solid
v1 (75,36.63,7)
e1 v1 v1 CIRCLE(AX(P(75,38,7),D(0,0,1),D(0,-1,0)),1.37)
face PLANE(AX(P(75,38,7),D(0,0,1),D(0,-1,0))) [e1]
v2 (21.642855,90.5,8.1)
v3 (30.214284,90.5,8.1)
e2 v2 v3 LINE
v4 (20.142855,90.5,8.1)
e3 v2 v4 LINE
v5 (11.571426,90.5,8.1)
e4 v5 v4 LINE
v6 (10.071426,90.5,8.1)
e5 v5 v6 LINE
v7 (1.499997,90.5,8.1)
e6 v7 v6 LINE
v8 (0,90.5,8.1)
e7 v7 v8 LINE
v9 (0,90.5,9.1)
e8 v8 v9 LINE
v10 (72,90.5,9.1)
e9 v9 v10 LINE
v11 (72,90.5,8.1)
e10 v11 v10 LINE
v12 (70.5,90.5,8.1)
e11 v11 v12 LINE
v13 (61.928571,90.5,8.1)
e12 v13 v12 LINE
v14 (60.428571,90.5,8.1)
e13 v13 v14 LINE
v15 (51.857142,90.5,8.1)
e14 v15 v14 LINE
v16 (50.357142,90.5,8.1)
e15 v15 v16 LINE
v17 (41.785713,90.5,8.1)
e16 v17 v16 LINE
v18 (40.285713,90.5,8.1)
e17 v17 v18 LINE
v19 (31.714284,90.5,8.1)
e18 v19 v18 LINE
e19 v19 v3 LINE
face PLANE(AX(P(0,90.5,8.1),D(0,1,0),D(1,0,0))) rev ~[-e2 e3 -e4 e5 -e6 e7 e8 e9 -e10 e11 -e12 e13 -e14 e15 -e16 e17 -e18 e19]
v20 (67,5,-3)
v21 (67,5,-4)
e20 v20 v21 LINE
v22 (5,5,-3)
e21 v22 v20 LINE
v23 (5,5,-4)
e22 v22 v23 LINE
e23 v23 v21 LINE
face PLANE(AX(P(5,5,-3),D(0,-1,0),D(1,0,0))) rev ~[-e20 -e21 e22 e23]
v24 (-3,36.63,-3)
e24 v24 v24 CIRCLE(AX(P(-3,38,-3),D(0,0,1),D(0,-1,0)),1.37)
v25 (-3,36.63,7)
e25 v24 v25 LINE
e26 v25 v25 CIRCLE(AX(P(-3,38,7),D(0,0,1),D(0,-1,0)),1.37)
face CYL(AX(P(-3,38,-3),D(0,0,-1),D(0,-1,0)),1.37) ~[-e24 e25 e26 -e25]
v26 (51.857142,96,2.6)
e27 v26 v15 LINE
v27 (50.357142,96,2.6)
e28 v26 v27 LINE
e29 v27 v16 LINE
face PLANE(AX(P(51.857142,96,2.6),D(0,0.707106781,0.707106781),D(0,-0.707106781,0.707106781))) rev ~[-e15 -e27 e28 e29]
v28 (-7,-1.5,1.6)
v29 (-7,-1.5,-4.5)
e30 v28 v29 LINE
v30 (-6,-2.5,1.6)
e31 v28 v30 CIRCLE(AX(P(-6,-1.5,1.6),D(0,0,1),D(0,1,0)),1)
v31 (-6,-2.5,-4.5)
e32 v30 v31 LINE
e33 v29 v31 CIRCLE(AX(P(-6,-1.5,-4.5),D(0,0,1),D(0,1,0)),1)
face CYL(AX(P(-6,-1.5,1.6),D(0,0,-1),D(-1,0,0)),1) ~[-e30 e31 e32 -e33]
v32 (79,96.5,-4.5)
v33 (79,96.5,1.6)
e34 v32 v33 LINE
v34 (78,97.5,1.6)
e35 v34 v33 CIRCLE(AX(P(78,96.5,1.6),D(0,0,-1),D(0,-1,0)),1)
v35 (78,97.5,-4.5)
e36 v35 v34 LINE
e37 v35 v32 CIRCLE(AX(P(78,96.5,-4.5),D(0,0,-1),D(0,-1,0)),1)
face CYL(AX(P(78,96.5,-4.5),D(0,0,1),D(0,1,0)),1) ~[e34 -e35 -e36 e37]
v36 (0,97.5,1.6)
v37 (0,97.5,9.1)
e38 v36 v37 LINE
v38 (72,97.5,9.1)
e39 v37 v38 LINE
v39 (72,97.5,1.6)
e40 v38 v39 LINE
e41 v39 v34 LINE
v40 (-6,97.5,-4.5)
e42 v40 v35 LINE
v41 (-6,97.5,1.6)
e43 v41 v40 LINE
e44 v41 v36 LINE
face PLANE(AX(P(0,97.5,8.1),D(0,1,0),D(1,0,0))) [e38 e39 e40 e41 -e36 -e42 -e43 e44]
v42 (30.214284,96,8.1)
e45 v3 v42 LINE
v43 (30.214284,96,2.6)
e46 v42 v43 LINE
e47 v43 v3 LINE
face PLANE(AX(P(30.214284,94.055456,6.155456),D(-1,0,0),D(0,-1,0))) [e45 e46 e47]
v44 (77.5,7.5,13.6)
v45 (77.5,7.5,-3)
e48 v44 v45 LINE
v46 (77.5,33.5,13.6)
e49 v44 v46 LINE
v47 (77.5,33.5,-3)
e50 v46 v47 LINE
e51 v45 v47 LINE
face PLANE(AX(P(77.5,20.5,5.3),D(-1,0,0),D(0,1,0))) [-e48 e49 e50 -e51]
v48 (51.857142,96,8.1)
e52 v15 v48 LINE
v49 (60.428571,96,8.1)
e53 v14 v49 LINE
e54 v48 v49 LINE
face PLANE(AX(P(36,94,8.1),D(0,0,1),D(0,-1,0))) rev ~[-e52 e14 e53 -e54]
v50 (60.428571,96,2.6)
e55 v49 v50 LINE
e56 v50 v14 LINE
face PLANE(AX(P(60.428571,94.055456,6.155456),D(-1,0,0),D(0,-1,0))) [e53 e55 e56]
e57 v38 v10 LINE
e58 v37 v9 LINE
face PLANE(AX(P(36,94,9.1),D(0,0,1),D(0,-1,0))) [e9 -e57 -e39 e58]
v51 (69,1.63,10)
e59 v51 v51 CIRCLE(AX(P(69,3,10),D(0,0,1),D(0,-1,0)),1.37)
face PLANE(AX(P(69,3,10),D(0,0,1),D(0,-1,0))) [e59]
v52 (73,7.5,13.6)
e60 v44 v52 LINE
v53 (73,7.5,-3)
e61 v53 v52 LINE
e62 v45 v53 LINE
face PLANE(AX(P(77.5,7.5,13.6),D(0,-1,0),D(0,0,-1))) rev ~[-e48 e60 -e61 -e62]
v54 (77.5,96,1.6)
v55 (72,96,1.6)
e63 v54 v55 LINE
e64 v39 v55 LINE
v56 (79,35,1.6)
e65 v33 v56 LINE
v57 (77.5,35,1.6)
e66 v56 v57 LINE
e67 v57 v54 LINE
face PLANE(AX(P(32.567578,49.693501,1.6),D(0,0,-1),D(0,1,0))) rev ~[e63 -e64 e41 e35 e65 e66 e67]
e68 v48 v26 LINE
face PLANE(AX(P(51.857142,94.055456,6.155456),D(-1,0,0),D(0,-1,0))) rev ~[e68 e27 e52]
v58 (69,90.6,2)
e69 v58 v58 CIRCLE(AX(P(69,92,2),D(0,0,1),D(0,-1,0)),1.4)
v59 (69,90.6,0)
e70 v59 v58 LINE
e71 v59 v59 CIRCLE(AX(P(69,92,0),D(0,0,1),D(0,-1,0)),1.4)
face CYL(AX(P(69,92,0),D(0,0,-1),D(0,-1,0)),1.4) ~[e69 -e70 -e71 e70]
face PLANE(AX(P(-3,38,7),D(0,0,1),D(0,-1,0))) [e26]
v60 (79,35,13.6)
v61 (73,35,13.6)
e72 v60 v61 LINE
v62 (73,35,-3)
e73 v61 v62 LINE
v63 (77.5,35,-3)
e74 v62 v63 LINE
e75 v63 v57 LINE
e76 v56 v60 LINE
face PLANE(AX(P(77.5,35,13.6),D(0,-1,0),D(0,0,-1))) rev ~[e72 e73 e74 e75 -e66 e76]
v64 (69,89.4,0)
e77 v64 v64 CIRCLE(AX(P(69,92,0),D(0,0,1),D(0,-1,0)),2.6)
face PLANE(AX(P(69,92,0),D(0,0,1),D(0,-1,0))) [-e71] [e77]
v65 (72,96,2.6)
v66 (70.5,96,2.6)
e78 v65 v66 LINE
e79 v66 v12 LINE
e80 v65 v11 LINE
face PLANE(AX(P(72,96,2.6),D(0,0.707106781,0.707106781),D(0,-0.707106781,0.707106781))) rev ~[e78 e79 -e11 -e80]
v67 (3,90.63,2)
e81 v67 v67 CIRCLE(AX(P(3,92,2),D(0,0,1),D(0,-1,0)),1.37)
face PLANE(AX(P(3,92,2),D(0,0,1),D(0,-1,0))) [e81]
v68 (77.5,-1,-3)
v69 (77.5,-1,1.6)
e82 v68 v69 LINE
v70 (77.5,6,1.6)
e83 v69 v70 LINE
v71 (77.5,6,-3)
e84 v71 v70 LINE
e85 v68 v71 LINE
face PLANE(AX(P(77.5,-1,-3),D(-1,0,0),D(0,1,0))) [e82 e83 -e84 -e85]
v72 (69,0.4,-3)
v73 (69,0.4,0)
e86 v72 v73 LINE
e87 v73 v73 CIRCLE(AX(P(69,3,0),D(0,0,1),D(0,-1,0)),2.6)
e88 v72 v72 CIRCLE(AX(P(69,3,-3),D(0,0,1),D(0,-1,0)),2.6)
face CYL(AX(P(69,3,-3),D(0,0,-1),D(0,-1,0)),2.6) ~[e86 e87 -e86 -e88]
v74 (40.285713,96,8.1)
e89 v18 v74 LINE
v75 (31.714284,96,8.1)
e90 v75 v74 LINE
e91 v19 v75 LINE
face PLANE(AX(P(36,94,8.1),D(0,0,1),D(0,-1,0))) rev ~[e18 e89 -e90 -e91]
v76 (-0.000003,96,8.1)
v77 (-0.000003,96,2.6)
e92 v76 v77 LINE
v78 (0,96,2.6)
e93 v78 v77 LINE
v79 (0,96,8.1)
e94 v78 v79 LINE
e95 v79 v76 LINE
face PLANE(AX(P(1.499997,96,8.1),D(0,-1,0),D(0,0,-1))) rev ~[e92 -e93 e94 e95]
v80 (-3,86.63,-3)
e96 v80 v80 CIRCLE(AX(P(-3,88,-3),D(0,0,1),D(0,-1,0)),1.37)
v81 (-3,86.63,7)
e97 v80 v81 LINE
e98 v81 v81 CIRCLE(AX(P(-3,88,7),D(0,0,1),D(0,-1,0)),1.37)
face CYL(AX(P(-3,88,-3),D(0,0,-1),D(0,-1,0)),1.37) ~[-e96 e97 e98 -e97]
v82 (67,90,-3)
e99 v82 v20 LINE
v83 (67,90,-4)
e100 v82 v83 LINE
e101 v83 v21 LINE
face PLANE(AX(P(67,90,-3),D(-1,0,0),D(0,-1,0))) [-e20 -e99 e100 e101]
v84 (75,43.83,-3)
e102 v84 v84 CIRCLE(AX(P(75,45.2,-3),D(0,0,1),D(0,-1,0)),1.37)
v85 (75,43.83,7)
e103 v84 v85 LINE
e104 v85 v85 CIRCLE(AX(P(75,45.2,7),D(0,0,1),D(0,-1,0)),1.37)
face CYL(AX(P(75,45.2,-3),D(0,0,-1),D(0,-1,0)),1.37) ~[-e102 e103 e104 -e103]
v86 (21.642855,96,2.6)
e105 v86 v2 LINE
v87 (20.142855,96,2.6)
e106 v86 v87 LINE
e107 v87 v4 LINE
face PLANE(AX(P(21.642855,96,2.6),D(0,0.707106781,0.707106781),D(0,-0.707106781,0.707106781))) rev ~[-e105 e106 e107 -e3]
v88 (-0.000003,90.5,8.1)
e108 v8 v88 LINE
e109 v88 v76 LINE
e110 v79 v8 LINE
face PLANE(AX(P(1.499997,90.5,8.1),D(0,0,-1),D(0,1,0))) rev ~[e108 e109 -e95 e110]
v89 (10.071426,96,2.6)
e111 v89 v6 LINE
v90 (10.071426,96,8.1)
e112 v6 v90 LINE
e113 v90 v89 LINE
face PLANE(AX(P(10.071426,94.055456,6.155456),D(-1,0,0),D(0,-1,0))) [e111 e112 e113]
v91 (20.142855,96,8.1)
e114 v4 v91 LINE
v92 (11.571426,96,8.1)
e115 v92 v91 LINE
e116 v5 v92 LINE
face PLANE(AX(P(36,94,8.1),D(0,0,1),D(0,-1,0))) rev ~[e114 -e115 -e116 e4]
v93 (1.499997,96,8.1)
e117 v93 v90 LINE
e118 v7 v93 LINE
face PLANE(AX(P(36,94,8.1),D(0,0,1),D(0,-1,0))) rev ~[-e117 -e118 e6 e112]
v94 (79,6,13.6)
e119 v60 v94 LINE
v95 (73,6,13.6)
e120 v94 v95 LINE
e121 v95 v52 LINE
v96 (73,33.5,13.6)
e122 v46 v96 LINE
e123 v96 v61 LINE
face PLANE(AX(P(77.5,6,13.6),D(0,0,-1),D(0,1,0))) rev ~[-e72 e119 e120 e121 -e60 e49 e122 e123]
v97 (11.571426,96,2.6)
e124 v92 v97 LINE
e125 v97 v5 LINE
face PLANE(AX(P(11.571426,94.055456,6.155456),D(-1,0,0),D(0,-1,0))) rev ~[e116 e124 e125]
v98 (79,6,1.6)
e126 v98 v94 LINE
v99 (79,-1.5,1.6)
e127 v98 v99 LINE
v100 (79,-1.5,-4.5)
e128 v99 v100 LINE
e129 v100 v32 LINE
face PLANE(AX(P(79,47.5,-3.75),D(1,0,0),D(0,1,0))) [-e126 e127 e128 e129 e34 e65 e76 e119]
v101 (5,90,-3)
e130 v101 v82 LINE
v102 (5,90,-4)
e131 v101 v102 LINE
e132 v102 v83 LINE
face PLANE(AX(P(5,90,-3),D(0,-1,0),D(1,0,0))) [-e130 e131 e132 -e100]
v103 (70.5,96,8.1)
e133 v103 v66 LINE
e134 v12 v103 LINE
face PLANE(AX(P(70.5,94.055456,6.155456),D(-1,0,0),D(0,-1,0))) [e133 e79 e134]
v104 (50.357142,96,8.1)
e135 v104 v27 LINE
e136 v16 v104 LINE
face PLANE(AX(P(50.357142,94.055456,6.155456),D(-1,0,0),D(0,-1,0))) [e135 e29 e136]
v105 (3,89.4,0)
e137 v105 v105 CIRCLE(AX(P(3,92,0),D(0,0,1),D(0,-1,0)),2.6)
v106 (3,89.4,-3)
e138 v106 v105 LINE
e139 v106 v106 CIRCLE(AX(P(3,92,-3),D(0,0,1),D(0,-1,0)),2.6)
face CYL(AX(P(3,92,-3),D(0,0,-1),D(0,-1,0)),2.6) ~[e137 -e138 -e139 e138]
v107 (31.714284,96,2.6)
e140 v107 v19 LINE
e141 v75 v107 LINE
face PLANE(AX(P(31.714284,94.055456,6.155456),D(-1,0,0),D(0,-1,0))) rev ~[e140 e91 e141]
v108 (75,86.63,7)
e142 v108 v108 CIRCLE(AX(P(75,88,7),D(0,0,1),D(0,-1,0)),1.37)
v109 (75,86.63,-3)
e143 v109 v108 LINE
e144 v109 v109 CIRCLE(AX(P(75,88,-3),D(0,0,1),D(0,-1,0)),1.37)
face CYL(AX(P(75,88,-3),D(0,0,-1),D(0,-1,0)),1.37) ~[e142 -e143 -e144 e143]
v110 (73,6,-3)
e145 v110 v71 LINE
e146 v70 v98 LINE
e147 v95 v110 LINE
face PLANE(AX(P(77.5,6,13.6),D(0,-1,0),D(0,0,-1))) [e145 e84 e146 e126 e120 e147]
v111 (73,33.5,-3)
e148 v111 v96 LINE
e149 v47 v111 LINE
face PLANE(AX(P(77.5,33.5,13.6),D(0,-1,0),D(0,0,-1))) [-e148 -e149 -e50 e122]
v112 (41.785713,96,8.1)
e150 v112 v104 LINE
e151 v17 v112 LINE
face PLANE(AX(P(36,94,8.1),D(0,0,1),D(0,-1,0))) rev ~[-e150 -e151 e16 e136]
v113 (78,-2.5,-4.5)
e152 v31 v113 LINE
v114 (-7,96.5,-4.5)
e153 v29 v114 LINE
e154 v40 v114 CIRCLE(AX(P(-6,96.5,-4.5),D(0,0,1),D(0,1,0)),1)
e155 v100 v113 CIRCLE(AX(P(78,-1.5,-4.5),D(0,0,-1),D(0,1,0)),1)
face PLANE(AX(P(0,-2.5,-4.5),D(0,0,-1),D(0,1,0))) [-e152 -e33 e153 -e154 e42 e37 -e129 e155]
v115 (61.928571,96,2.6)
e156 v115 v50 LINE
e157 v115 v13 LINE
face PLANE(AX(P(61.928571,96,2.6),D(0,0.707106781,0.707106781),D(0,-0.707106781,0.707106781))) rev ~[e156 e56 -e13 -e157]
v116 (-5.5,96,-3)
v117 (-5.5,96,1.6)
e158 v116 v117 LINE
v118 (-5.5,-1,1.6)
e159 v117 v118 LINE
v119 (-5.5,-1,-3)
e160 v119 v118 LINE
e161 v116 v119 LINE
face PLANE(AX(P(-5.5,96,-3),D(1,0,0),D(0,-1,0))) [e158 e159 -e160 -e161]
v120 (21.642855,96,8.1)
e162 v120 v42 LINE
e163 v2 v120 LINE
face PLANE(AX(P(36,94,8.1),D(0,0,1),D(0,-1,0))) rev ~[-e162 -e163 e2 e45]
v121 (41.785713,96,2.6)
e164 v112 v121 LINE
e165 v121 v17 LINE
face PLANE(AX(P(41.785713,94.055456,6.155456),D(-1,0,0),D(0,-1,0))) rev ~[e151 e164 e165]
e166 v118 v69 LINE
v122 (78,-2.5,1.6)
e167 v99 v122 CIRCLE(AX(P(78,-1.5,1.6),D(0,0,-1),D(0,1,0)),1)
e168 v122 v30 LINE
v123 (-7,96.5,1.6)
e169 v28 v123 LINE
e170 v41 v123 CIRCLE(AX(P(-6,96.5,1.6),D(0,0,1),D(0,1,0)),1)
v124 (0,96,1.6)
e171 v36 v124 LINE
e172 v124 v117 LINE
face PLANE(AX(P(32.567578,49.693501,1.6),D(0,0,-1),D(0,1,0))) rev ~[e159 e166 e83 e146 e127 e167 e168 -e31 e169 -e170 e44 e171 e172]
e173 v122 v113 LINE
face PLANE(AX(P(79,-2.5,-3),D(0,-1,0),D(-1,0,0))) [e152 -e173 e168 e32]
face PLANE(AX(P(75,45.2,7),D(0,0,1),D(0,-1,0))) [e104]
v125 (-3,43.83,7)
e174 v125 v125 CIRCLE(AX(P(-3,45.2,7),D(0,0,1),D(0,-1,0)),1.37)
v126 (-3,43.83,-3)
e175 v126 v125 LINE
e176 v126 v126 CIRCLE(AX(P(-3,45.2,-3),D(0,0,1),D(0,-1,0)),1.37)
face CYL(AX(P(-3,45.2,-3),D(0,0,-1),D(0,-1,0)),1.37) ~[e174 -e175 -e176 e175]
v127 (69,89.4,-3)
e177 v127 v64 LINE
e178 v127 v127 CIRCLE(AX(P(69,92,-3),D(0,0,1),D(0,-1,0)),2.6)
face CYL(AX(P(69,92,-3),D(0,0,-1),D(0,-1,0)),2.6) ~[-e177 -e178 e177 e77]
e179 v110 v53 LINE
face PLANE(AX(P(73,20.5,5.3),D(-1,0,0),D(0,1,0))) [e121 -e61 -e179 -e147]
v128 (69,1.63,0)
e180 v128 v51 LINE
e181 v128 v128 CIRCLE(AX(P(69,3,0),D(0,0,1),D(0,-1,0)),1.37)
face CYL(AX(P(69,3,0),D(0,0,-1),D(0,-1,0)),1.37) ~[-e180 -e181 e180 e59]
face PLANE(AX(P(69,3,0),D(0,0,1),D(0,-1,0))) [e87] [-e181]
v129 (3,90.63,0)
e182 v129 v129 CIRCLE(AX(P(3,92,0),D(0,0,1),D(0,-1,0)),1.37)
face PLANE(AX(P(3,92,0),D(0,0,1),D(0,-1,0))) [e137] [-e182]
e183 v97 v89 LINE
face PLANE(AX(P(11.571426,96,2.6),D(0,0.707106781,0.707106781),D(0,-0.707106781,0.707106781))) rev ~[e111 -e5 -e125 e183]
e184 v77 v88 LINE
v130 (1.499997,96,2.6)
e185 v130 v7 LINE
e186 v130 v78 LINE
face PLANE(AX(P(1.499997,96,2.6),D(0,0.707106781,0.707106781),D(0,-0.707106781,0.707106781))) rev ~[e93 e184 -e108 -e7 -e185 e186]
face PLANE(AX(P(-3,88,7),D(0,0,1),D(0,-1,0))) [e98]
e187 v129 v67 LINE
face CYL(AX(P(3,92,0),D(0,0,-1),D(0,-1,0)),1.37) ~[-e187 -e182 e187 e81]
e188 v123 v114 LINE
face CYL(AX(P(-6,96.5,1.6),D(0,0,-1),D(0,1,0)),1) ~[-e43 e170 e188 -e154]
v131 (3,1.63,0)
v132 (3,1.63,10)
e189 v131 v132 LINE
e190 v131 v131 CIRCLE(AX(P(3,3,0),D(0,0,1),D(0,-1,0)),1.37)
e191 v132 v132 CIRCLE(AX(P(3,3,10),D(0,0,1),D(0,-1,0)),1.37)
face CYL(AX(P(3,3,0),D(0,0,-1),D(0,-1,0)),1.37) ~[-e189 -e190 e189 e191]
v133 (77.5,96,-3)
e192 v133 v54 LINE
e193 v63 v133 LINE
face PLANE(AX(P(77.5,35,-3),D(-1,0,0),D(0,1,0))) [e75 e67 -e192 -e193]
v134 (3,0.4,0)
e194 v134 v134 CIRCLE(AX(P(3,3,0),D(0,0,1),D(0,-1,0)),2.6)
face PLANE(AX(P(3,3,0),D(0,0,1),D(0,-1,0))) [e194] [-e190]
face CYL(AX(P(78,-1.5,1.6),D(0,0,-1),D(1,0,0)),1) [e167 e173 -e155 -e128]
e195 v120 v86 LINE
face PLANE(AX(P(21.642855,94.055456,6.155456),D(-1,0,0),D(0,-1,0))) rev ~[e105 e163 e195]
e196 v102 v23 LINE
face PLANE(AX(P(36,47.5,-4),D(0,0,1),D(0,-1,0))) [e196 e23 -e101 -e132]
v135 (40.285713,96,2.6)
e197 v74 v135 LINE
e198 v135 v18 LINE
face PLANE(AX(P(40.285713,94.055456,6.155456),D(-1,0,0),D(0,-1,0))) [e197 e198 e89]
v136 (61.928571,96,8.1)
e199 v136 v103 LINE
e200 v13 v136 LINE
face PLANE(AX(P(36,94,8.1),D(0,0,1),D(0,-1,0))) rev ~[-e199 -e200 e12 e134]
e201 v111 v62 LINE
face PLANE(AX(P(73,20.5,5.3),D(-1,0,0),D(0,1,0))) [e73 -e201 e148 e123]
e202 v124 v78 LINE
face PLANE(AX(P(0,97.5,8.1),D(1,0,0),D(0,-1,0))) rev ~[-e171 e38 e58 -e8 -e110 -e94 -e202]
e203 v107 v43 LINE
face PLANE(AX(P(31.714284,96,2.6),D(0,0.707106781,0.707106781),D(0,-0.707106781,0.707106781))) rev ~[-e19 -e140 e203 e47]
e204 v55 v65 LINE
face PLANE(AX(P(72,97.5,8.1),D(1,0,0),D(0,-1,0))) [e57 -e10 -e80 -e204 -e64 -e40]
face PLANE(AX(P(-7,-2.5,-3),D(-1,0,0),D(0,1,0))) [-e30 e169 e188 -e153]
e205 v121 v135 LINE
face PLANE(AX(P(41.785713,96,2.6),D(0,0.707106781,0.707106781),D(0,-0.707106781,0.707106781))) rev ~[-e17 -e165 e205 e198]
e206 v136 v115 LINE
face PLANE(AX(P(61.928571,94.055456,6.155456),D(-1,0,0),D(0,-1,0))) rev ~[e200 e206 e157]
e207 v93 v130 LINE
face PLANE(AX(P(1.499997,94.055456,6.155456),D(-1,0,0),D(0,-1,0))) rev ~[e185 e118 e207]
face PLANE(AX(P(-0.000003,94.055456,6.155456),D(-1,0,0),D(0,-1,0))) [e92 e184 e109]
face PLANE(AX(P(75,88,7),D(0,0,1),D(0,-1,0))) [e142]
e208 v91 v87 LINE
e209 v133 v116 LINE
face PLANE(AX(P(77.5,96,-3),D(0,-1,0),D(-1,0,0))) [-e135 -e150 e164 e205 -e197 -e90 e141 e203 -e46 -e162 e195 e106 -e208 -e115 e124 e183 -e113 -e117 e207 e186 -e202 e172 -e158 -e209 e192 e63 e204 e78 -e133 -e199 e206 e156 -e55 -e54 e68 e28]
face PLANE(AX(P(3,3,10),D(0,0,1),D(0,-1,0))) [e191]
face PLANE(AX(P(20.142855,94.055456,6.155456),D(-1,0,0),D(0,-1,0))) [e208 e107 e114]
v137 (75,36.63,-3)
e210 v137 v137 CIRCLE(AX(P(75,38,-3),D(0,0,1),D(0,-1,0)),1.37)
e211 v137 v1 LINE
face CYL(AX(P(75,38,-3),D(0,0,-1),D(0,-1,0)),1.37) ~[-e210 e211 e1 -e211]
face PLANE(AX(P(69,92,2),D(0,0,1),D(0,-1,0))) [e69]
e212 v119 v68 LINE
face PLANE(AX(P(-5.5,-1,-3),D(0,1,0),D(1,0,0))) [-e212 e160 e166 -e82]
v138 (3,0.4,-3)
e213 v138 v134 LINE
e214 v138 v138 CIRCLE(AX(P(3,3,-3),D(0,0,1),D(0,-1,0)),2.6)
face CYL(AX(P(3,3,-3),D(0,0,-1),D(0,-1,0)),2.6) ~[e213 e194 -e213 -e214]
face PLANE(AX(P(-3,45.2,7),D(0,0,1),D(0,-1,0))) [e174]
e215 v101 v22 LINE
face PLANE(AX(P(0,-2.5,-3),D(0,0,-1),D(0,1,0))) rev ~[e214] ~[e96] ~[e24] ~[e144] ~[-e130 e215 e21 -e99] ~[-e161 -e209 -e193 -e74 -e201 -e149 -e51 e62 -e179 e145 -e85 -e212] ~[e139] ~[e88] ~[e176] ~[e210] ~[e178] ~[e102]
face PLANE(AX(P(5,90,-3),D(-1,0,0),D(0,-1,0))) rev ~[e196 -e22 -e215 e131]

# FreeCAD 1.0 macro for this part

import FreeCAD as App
import Part
import Sketcher
from FreeCAD import Vector


def edges_at(feature, points):
    """Names of the edges that pass closest to the given points."""
    edges = feature.Shape.Edges
    near = lambda p: min(range(len(edges)), key=lambda i: edges[i].distToShape(Part.Vertex(*p))[0])
    return sorted({f"Edge{near(p) + 1}" for p in points})

doc = App.newDocument("Part")
body = doc.addObject("PartDesign::Body", "Body")

# Sketch on YZ plane
sketch1 = body.newObject("Sketcher::SketchObject", "Sketch")
sketch1.AttachmentSupport = (doc.getObject("YZ_Plane"), [""])
sketch1.MapMode = "FlatFace"
sketch1.addGeometry(Part.LineSegment(Vector(-2.5, -3, 0), Vector(-2.5, -4.5, 0)), False)
sketch1.addGeometry(Part.LineSegment(Vector(-2.5, -4.5, 0), Vector(97.5, -4.5, 0)), False)
sketch1.addGeometry(Part.LineSegment(Vector(97.5, -4.5, 0), Vector(97.5, -3, 0)), False)
sketch1.addGeometry(Part.LineSegment(Vector(97.5, -3, 0), Vector(-2.5, -3, 0)), False)
sketch1.addConstraint(Sketcher.Constraint("Coincident", 0, 2, 1, 1))
sketch1.addConstraint(Sketcher.Constraint("Coincident", 1, 2, 2, 1))
sketch1.addConstraint(Sketcher.Constraint("Coincident", 2, 2, 3, 1))
sketch1.addConstraint(Sketcher.Constraint("Coincident", 3, 2, 0, 1))
sketch1.addConstraint(Sketcher.Constraint("Vertical", 0))
sketch1.addConstraint(Sketcher.Constraint("Horizontal", 1))
sketch1.addConstraint(Sketcher.Constraint("Vertical", 2))
sketch1.addConstraint(Sketcher.Constraint("Horizontal", 3))
sketch1.addConstraint(Sketcher.Constraint("DistanceX", 1, 1, 1, 2, 100.0))
sketch1.addConstraint(Sketcher.Constraint("DistanceY", 0, 2, 0, 1, 1.5))
sketch1.addConstraint(Sketcher.Constraint("DistanceY", 2, 2, -1, 1, 3.0))
sketch1.addConstraint(Sketcher.Constraint("DistanceX", 0, 2, -1, 1, 2.5))
pad1 = body.newObject("PartDesign::Pad", "Pad")
pad1.Profile = sketch1
pad1.Type = "TwoLengths"
pad1.Length = 79
pad1.Length2 = 7

# Sketch on XY plane
sketch2 = body.newObject("Sketcher::SketchObject", "Sketch001")
sketch2.AttachmentSupport = (doc.getObject("XY_Plane"), [""])
sketch2.MapMode = "FlatFace"
sketch2.AttachmentOffset = App.Placement(Vector(0, 0, -3), App.Rotation())
sketch2.addGeometry(Part.Circle(Vector(3, 3, 0), Vector(0, 0, 1), 2.6), False)
sketch2.addGeometry(Part.Circle(Vector(69, 3, 0), Vector(0, 0, 1), 2.6), False)
sketch2.addGeometry(Part.Circle(Vector(3, 92, 0), Vector(0, 0, 1), 2.6), False)
sketch2.addGeometry(Part.Circle(Vector(69, 92, 0), Vector(0, 0, 1), 2.6), False)
sketch2.addConstraint(Sketcher.Constraint("Equal", 0, 1))
sketch2.addConstraint(Sketcher.Constraint("Equal", 1, 2))
sketch2.addConstraint(Sketcher.Constraint("Equal", 2, 3))
sketch2.addConstraint(Sketcher.Constraint("Horizontal", 0, 3, 1, 3))
sketch2.addConstraint(Sketcher.Constraint("Horizontal", 2, 3, 3, 3))
sketch2.addConstraint(Sketcher.Constraint("Vertical", 0, 3, 2, 3))
sketch2.addConstraint(Sketcher.Constraint("Vertical", 1, 3, 3, 3))
sketch2.addConstraint(Sketcher.Constraint("Diameter", 0, 5.2))
sketch2.addConstraint(Sketcher.Constraint("DistanceX", -1, 1, 0, 3, 3.0))
sketch2.addConstraint(Sketcher.Constraint("DistanceY", -1, 1, 0, 3, 3.0))
sketch2.addConstraint(Sketcher.Constraint("DistanceX", -1, 1, 1, 3, 69.0))
sketch2.addConstraint(Sketcher.Constraint("DistanceY", -1, 1, 2, 3, 92.0))
pad2 = body.newObject("PartDesign::Pad", "Pad001")
pad2.Profile = sketch2
pad2.Length = 3

# Sketch on XY plane
sketch3 = body.newObject("Sketcher::SketchObject", "Sketch002")
sketch3.AttachmentSupport = (doc.getObject("XY_Plane"), [""])
sketch3.MapMode = "FlatFace"
sketch3.AttachmentOffset = App.Placement(Vector(0, 0, -3), App.Rotation())
sketch3.addGeometry(Part.LineSegment(Vector(79, 35, 0), Vector(77.5, 35, 0)), False)
sketch3.addGeometry(Part.LineSegment(Vector(77.5, 35, 0), Vector(77.5, 6, 0)), False)
sketch3.addGeometry(Part.LineSegment(Vector(77.5, 6, 0), Vector(79, 6, 0)), False)
sketch3.addGeometry(Part.LineSegment(Vector(79, 6, 0), Vector(79, 35, 0)), False)
sketch3.addConstraint(Sketcher.Constraint("Coincident", 0, 2, 1, 1))
sketch3.addConstraint(Sketcher.Constraint("Coincident", 1, 2, 2, 1))
sketch3.addConstraint(Sketcher.Constraint("Coincident", 2, 2, 3, 1))
sketch3.addConstraint(Sketcher.Constraint("Coincident", 3, 2, 0, 1))
sketch3.addConstraint(Sketcher.Constraint("Horizontal", 0))
sketch3.addConstraint(Sketcher.Constraint("Vertical", 1))
sketch3.addConstraint(Sketcher.Constraint("Horizontal", 2))
sketch3.addConstraint(Sketcher.Constraint("Vertical", 3))
sketch3.addConstraint(Sketcher.Constraint("DistanceY", 1, 2, 1, 1, 29.0))
sketch3.addConstraint(Sketcher.Constraint("DistanceX", 0, 2, 0, 1, 1.5))
sketch3.addConstraint(Sketcher.Constraint("DistanceY", -1, 1, 0, 2, 35.0))
sketch3.addConstraint(Sketcher.Constraint("DistanceX", -1, 1, 2, 2, 79.0))
pad3 = body.newObject("PartDesign::Pad", "Pad002")
pad3.Profile = sketch3
pad3.Length = 16.6

# Sketch on YZ plane
sketch4 = body.newObject("Sketcher::SketchObject", "Sketch003")
sketch4.AttachmentSupport = (doc.getObject("YZ_Plane"), [""])
sketch4.MapMode = "FlatFace"
sketch4.AttachmentOffset = App.Placement(Vector(0, 0, 77.5), App.Rotation())
sketch4.addGeometry(Part.LineSegment(Vector(6, -3, 0), Vector(6, 14, 0)), False)
sketch4.addGeometry(Part.LineSegment(Vector(6, 14, 0), Vector(35, 14, 0)), False)
sketch4.addGeometry(Part.LineSegment(Vector(35, 14, 0), Vector(35, -3, 0)), False)
sketch4.addGeometry(Part.LineSegment(Vector(35, -3, 0), Vector(6, -3, 0)), False)
sketch4.addConstraint(Sketcher.Constraint("Coincident", 0, 2, 1, 1))
sketch4.addConstraint(Sketcher.Constraint("Coincident", 1, 2, 2, 1))
sketch4.addConstraint(Sketcher.Constraint("Coincident", 2, 2, 3, 1))
sketch4.addConstraint(Sketcher.Constraint("Coincident", 3, 2, 0, 1))
sketch4.addConstraint(Sketcher.Constraint("Vertical", 0))
sketch4.addConstraint(Sketcher.Constraint("Horizontal", 1))
sketch4.addConstraint(Sketcher.Constraint("Vertical", 2))
sketch4.addConstraint(Sketcher.Constraint("Horizontal", 3))
sketch4.addConstraint(Sketcher.Constraint("DistanceX", 1, 1, 1, 2, 29.0))
sketch4.addConstraint(Sketcher.Constraint("DistanceY", 0, 1, 0, 2, 16.6))
sketch4.addConstraint(Sketcher.Constraint("DistanceX", -1, 1, 0, 2, 6.0))
sketch4.addConstraint(Sketcher.Constraint("DistanceY", 2, 2, -1, 1, 3.0))
pad4 = body.newObject("PartDesign::Pad", "Pad003")
pad4.Profile = sketch4
pad4.Length = 4.5
pad4.Reversed = True

# Sketch on YZ plane
sketch5 = body.newObject("Sketcher::SketchObject", "Sketch004")
sketch5.AttachmentSupport = (doc.getObject("YZ_Plane"), [""])
sketch5.MapMode = "FlatFace"
sketch5.AttachmentOffset = App.Placement(Vector(0, 0, 77.5), App.Rotation())
sketch5.addGeometry(Part.LineSegment(Vector(8, -3, 0), Vector(8, 14, 0)), False)
sketch5.addGeometry(Part.LineSegment(Vector(8, 14, 0), Vector(34, 14, 0)), False)
sketch5.addGeometry(Part.LineSegment(Vector(34, 14, 0), Vector(34, -3, 0)), False)
sketch5.addGeometry(Part.LineSegment(Vector(34, -3, 0), Vector(8, -3, 0)), False)
sketch5.addConstraint(Sketcher.Constraint("Coincident", 0, 2, 1, 1))
sketch5.addConstraint(Sketcher.Constraint("Coincident", 1, 2, 2, 1))
sketch5.addConstraint(Sketcher.Constraint("Coincident", 2, 2, 3, 1))
sketch5.addConstraint(Sketcher.Constraint("Coincident", 3, 2, 0, 1))
sketch5.addConstraint(Sketcher.Constraint("Vertical", 0))
sketch5.addConstraint(Sketcher.Constraint("Horizontal", 1))
sketch5.addConstraint(Sketcher.Constraint("Vertical", 2))
sketch5.addConstraint(Sketcher.Constraint("Horizontal", 3))
sketch5.addConstraint(Sketcher.Constraint("DistanceX", 1, 1, 1, 2, 26.0))
sketch5.addConstraint(Sketcher.Constraint("DistanceY", 0, 1, 0, 2, 16.6))
sketch5.addConstraint(Sketcher.Constraint("DistanceY", 2, 2, -1, 1, 3.0))
sketch5.addConstraint(Sketcher.Constraint("DistanceX", -1, 1, 0, 2, 7.5))
pocket1 = body.newObject("PartDesign::Pocket", "Pocket")
pocket1.Profile = sketch5
pocket1.Length = 10

# Sketch on XY plane
sketch6 = body.newObject("Sketcher::SketchObject", "Sketch005")
sketch6.AttachmentSupport = (doc.getObject("XY_Plane"), [""])
sketch6.MapMode = "FlatFace"
sketch6.AttachmentOffset = App.Placement(Vector(0, 0, -3), App.Rotation())
sketch6.addGeometry(Part.LineSegment(Vector(67, 90, 0), Vector(5, 90, 0)), False)
sketch6.addGeometry(Part.LineSegment(Vector(5, 90, 0), Vector(5, 5, 0)), False)
sketch6.addGeometry(Part.LineSegment(Vector(5, 5, 0), Vector(67, 5, 0)), False)
sketch6.addGeometry(Part.LineSegment(Vector(67, 5, 0), Vector(67, 90, 0)), False)
sketch6.addConstraint(Sketcher.Constraint("Coincident", 0, 2, 1, 1))
sketch6.addConstraint(Sketcher.Constraint("Coincident", 1, 2, 2, 1))
sketch6.addConstraint(Sketcher.Constraint("Coincident", 2, 2, 3, 1))
sketch6.addConstraint(Sketcher.Constraint("Coincident", 3, 2, 0, 1))
sketch6.addConstraint(Sketcher.Constraint("Horizontal", 0))
sketch6.addConstraint(Sketcher.Constraint("Vertical", 1))
sketch6.addConstraint(Sketcher.Constraint("Horizontal", 2))
sketch6.addConstraint(Sketcher.Constraint("Vertical", 3))
sketch6.addConstraint(Sketcher.Constraint("DistanceX", 0, 2, 0, 1, 62.0))
sketch6.addConstraint(Sketcher.Constraint("DistanceY", 1, 2, 1, 1, 85.0))
sketch6.addConstraint(Sketcher.Constraint("DistanceX", -1, 1, 0, 2, 5.0))
sketch6.addConstraint(Sketcher.Constraint("DistanceY", -1, 1, 0, 2, 90.0))
pocket2 = body.newObject("PartDesign::Pocket", "Pocket001")
pocket2.Profile = sketch6
pocket2.Length = 1

# Sketch on XY plane
sketch7 = body.newObject("Sketcher::SketchObject", "Sketch006")
sketch7.AttachmentSupport = (doc.getObject("XY_Plane"), [""])
sketch7.MapMode = "FlatFace"
sketch7.AttachmentOffset = App.Placement(Vector(0, 0, -3), App.Rotation())
sketch7.addGeometry(Part.LineSegment(Vector(77.5, 35, 0), Vector(79, 35, 0)), False)
sketch7.addGeometry(Part.LineSegment(Vector(79, 35, 0), Vector(79, 97.5, 0)), False)
sketch7.addGeometry(Part.LineSegment(Vector(79, 97.5, 0), Vector(-7, 97.5, 0)), False)
sketch7.addGeometry(Part.LineSegment(Vector(-7, 97.5, 0), Vector(-7, -2.5, 0)), False)
sketch7.addGeometry(Part.LineSegment(Vector(-7, -2.5, 0), Vector(79, -2.5, 0)), False)
sketch7.addGeometry(Part.LineSegment(Vector(79, -2.5, 0), Vector(79, 6, 0)), False)
sketch7.addGeometry(Part.LineSegment(Vector(79, 6, 0), Vector(77.5, 6, 0)), False)
sketch7.addGeometry(Part.LineSegment(Vector(77.5, 6, 0), Vector(77.5, -1, 0)), False)
sketch7.addGeometry(Part.LineSegment(Vector(77.5, -1, 0), Vector(-5.5, -1, 0)), False)
sketch7.addGeometry(Part.LineSegment(Vector(-5.5, -1, 0), Vector(-5.5, 96, 0)), False)
sketch7.addGeometry(Part.LineSegment(Vector(-5.5, 96, 0), Vector(77.5, 96, 0)), False)
sketch7.addGeometry(Part.LineSegment(Vector(77.5, 96, 0), Vector(77.5, 35, 0)), False)
sketch7.addConstraint(Sketcher.Constraint("Coincident", 0, 2, 1, 1))
sketch7.addConstraint(Sketcher.Constraint("Coincident", 1, 2, 2, 1))
sketch7.addConstraint(Sketcher.Constraint("Coincident", 2, 2, 3, 1))
sketch7.addConstraint(Sketcher.Constraint("Coincident", 3, 2, 4, 1))
sketch7.addConstraint(Sketcher.Constraint("Coincident", 4, 2, 5, 1))
sketch7.addConstraint(Sketcher.Constraint("Coincident", 5, 2, 6, 1))
sketch7.addConstraint(Sketcher.Constraint("Coincident", 6, 2, 7, 1))
sketch7.addConstraint(Sketcher.Constraint("Coincident", 7, 2, 8, 1))
sketch7.addConstraint(Sketcher.Constraint("Coincident", 8, 2, 9, 1))
sketch7.addConstraint(Sketcher.Constraint("Coincident", 9, 2, 10, 1))
sketch7.addConstraint(Sketcher.Constraint("Coincident", 10, 2, 11, 1))
sketch7.addConstraint(Sketcher.Constraint("Coincident", 11, 2, 0, 1))
sketch7.addConstraint(Sketcher.Constraint("Horizontal", 0))
sketch7.addConstraint(Sketcher.Constraint("Vertical", 1))
sketch7.addConstraint(Sketcher.Constraint("Horizontal", 2))
sketch7.addConstraint(Sketcher.Constraint("Vertical", 3))
sketch7.addConstraint(Sketcher.Constraint("Horizontal", 4))
sketch7.addConstraint(Sketcher.Constraint("Vertical", 5))
sketch7.addConstraint(Sketcher.Constraint("Horizontal", 6))
sketch7.addConstraint(Sketcher.Constraint("Vertical", 7))
sketch7.addConstraint(Sketcher.Constraint("Horizontal", 8))
sketch7.addConstraint(Sketcher.Constraint("Vertical", 9))
sketch7.addConstraint(Sketcher.Constraint("Horizontal", 10))
sketch7.addConstraint(Sketcher.Constraint("Vertical", 11))
sketch7.addConstraint(Sketcher.Constraint("Vertical", 1, 2, 4, 2))
sketch7.addConstraint(Sketcher.Constraint("Vertical", 7, 2, 10, 2))
sketch7.addConstraint(Sketcher.Constraint("DistanceX", 2, 2, 2, 1, 86.0))
sketch7.addConstraint(Sketcher.Constraint("DistanceX", 8, 2, 8, 1, 83.0))
sketch7.addConstraint(Sketcher.Constraint("DistanceY", 3, 2, 3, 1, 100.0))
sketch7.addConstraint(Sketcher.Constraint("DistanceY", 7, 2, 7, 1, 7.0))
sketch7.addConstraint(Sketcher.Constraint("DistanceY", 9, 1, 9, 2, 97.0))
sketch7.addConstraint(Sketcher.Constraint("DistanceY", 11, 2, 11, 1, 61.0))
sketch7.addConstraint(Sketcher.Constraint("DistanceX", 0, 1, 0, 2, 1.5))
sketch7.addConstraint(Sketcher.Constraint("DistanceY", 1, 1, 1, 2, 62.5))
sketch7.addConstraint(Sketcher.Constraint("DistanceX", -1, 1, 0, 2, 79.0))
sketch7.addConstraint(Sketcher.Constraint("DistanceY", -1, 1, 0, 2, 35.0))
pad5 = body.newObject("PartDesign::Pad", "Pad004")
pad5.Profile = sketch7
pad5.Length = 4.6

# Sketch on XY plane
sketch8 = body.newObject("Sketcher::SketchObject", "Sketch007")
sketch8.AttachmentSupport = (doc.getObject("XY_Plane"), [""])
sketch8.MapMode = "FlatFace"
sketch8.AttachmentOffset = App.Placement(Vector(0, 0, 1.6), App.Rotation())
sketch8.addGeometry(Part.LineSegment(Vector(72, 97.5, 0), Vector(0, 97.5, 0)), False)
sketch8.addGeometry(Part.LineSegment(Vector(0, 97.5, 0), Vector(0, 96, 0)), False)
sketch8.addGeometry(Part.LineSegment(Vector(0, 96, 0), Vector(72, 96, 0)), False)
sketch8.addGeometry(Part.LineSegment(Vector(72, 96, 0), Vector(72, 97.5, 0)), False)
sketch8.addConstraint(Sketcher.Constraint("Coincident", 0, 2, 1, 1))
sketch8.addConstraint(Sketcher.Constraint("Coincident", 1, 2, 2, 1))
sketch8.addConstraint(Sketcher.Constraint("Coincident", 2, 2, 3, 1))
sketch8.addConstraint(Sketcher.Constraint("Coincident", 3, 2, 0, 1))
sketch8.addConstraint(Sketcher.Constraint("Horizontal", 0))
sketch8.addConstraint(Sketcher.Constraint("Vertical", 1))
sketch8.addConstraint(Sketcher.Constraint("Horizontal", 2))
sketch8.addConstraint(Sketcher.Constraint("Vertical", 3))
sketch8.addConstraint(Sketcher.Constraint("PointOnObject", 0, 2, -2))
sketch8.addConstraint(Sketcher.Constraint("DistanceX", 0, 2, 0, 1, 72.0))
sketch8.addConstraint(Sketcher.Constraint("DistanceY", 1, 2, 1, 1, 1.5))
sketch8.addConstraint(Sketcher.Constraint("DistanceY", -1, 1, 1, 2, 96.0))
pad6 = body.newObject("PartDesign::Pad", "Pad005")
pad6.Profile = sketch8
pad6.Length = 6.5

# Sketch on YZ plane
sketch9 = body.newObject("Sketcher::SketchObject", "Sketch008")
sketch9.AttachmentSupport = (doc.getObject("YZ_Plane"), [""])
sketch9.MapMode = "FlatFace"
sketch9.AttachmentOffset = App.Placement(Vector(0, 0, 72), App.Rotation())
sketch9.addGeometry(Part.LineSegment(Vector(96, 3, 0), Vector(96, 8, 0)), False)
sketch9.addGeometry(Part.LineSegment(Vector(96, 8, 0), Vector(90, 8, 0)), False)
sketch9.addGeometry(Part.LineSegment(Vector(90, 8, 0), Vector(96, 3, 0)), False)
sketch9.addConstraint(Sketcher.Constraint("Coincident", 0, 2, 1, 1))
sketch9.addConstraint(Sketcher.Constraint("Coincident", 1, 2, 2, 1))
sketch9.addConstraint(Sketcher.Constraint("Coincident", 2, 2, 0, 1))
sketch9.addConstraint(Sketcher.Constraint("Vertical", 0))
sketch9.addConstraint(Sketcher.Constraint("Horizontal", 1))
sketch9.addConstraint(Sketcher.Constraint("Equal", 1, 0))
sketch9.addConstraint(Sketcher.Constraint("DistanceX", 1, 2, 1, 1, 5.5))
sketch9.addConstraint(Sketcher.Constraint("DistanceX", -1, 1, 0, 2, 96.0))
sketch9.addConstraint(Sketcher.Constraint("DistanceY", -1, 1, 0, 2, 8.1))
pad7 = body.newObject("PartDesign::Pad", "Pad006")
pad7.Profile = sketch9
pad7.Length = 1.5
pad7.Reversed = True
doc.recompute()

linearpattern = body.newObject("PartDesign::LinearPattern", "LinearPattern")
linearpattern.Originals = [pad7]
linearpattern.Direction = (doc.getObject("X_Axis"), [""])
linearpattern.Mode = "offset"
linearpattern.Offset = 10.071429
linearpattern.Occurrences = 8
linearpattern.Reversed = True
body.Tip = linearpattern

# Sketch on XY plane
sketch10 = body.newObject("Sketcher::SketchObject", "Sketch009")
sketch10.AttachmentSupport = (doc.getObject("XY_Plane"), [""])
sketch10.MapMode = "FlatFace"
sketch10.AttachmentOffset = App.Placement(Vector(0, 0, 8.1), App.Rotation())
sketch10.addGeometry(Part.LineSegment(Vector(72, 98, 0), Vector(0, 98, 0)), False)
sketch10.addGeometry(Part.LineSegment(Vector(0, 98, 0), Vector(0, 90, 0)), False)
sketch10.addGeometry(Part.LineSegment(Vector(0, 90, 0), Vector(72, 90, 0)), False)
sketch10.addGeometry(Part.LineSegment(Vector(72, 90, 0), Vector(72, 98, 0)), False)
sketch10.addConstraint(Sketcher.Constraint("Coincident", 0, 2, 1, 1))
sketch10.addConstraint(Sketcher.Constraint("Coincident", 1, 2, 2, 1))
sketch10.addConstraint(Sketcher.Constraint("Coincident", 2, 2, 3, 1))
sketch10.addConstraint(Sketcher.Constraint("Coincident", 3, 2, 0, 1))
sketch10.addConstraint(Sketcher.Constraint("Horizontal", 0))
sketch10.addConstraint(Sketcher.Constraint("Vertical", 1))
sketch10.addConstraint(Sketcher.Constraint("Horizontal", 2))
sketch10.addConstraint(Sketcher.Constraint("Vertical", 3))
sketch10.addConstraint(Sketcher.Constraint("PointOnObject", 0, 2, -2))
sketch10.addConstraint(Sketcher.Constraint("DistanceX", 0, 2, 0, 1, 72.0))
sketch10.addConstraint(Sketcher.Constraint("DistanceY", 1, 2, 1, 1, 7.0))
sketch10.addConstraint(Sketcher.Constraint("DistanceY", -1, 1, 0, 2, 97.5))
pad8 = body.newObject("PartDesign::Pad", "Pad007")
pad8.Profile = sketch10
pad8.Length = 1

# Sketch on XY plane
sketch11 = body.newObject("Sketcher::SketchObject", "Sketch010")
sketch11.AttachmentSupport = (doc.getObject("XY_Plane"), [""])
sketch11.MapMode = "FlatFace"
sketch11.addGeometry(Part.Circle(Vector(69, 92, 0), Vector(0, 0, 1), 1.4), False)
sketch11.addGeometry(Part.Circle(Vector(3, 92, 0), Vector(0, 0, 1), 1.4), False)
sketch11.addConstraint(Sketcher.Constraint("Horizontal", 0, 3, 1, 3))
sketch11.addConstraint(Sketcher.Constraint("Diameter", 0, 2.8))
sketch11.addConstraint(Sketcher.Constraint("Diameter", 1, 2.74))
sketch11.addConstraint(Sketcher.Constraint("DistanceX", -1, 1, 0, 3, 69.0))
sketch11.addConstraint(Sketcher.Constraint("DistanceY", -1, 1, 0, 3, 92.0))
sketch11.addConstraint(Sketcher.Constraint("DistanceX", -1, 1, 1, 3, 3.0))
pad9 = body.newObject("PartDesign::Pad", "Pad008")
pad9.Profile = sketch11
pad9.Length = 2

# Sketch on XY plane
sketch12 = body.newObject("Sketcher::SketchObject", "Sketch011")
sketch12.AttachmentSupport = (doc.getObject("XY_Plane"), [""])
sketch12.MapMode = "FlatFace"
sketch12.addGeometry(Part.Circle(Vector(69, 3, 0), Vector(0, 0, 1), 1.4), False)
sketch12.addGeometry(Part.Circle(Vector(3, 3, 0), Vector(0, 0, 1), 1.4), False)
sketch12.addConstraint(Sketcher.Constraint("Equal", 0, 1))
sketch12.addConstraint(Sketcher.Constraint("Horizontal", 0, 3, 1, 3))
sketch12.addConstraint(Sketcher.Constraint("Diameter", 0, 2.74))
sketch12.addConstraint(Sketcher.Constraint("DistanceX", -1, 1, 0, 3, 69.0))
sketch12.addConstraint(Sketcher.Constraint("DistanceY", -1, 1, 0, 3, 3.0))
sketch12.addConstraint(Sketcher.Constraint("DistanceX", -1, 1, 1, 3, 3.0))
pad10 = body.newObject("PartDesign::Pad", "Pad009")
pad10.Profile = sketch12
pad10.Length = 10

# Sketch on XY plane
sketch13 = body.newObject("Sketcher::SketchObject", "Sketch012")
sketch13.AttachmentSupport = (doc.getObject("XY_Plane"), [""])
sketch13.MapMode = "FlatFace"
sketch13.AttachmentOffset = App.Placement(Vector(0, 0, -3), App.Rotation())
sketch13.addGeometry(Part.Circle(Vector(-3, 88, 0), Vector(0, 0, 1), 1.4), False)
sketch13.addGeometry(Part.Circle(Vector(75, 88, 0), Vector(0, 0, 1), 1.4), False)
sketch13.addConstraint(Sketcher.Constraint("Equal", 0, 1))
sketch13.addConstraint(Sketcher.Constraint("Horizontal", 0, 3, 1, 3))
sketch13.addConstraint(Sketcher.Constraint("Diameter", 0, 2.74))
sketch13.addConstraint(Sketcher.Constraint("DistanceX", 0, 3, -1, 1, 3.0))
sketch13.addConstraint(Sketcher.Constraint("DistanceY", -1, 1, 0, 3, 88.0))
sketch13.addConstraint(Sketcher.Constraint("DistanceX", -1, 1, 1, 3, 75.0))
pad11 = body.newObject("PartDesign::Pad", "Pad010")
pad11.Profile = sketch13
pad11.Length = 10
doc.recompute()

fillet = body.newObject("PartDesign::Fillet", "Fillet")
fillet.Base = (pad11, edges_at(pad11, [
    (79, 97.5, -1.45),
    (-7, 97.5, -1.45),
    (-7, -2.5, -1.45),
    (79, -2.5, -1.45),
]))
fillet.Radius = 1
doc.recompute()

linearpattern2 = body.newObject("PartDesign::LinearPattern", "LinearPattern001")
linearpattern2.Originals = [pad11]
linearpattern2.Direction = (doc.getObject("Y_Axis"), [""])
linearpattern2.Mode = "offset"
linearpattern2.Offset = 42.8
linearpattern2.Occurrences = 2
linearpattern2.Reversed = True
body.Tip = linearpattern2

# Sketch on XY plane
sketch14 = body.newObject("Sketcher::SketchObject", "Sketch013")
sketch14.AttachmentSupport = (doc.getObject("XY_Plane"), [""])
sketch14.MapMode = "FlatFace"
sketch14.AttachmentOffset = App.Placement(Vector(0, 0, -3), App.Rotation())
sketch14.addGeometry(Part.Circle(Vector(75, 38, 0), Vector(0, 0, 1), 1.4), False)
sketch14.addGeometry(Part.Circle(Vector(-3, 38, 0), Vector(0, 0, 1), 1.4), False)
sketch14.addConstraint(Sketcher.Constraint("Equal", 0, 1))
sketch14.addConstraint(Sketcher.Constraint("Horizontal", 0, 3, 1, 3))
sketch14.addConstraint(Sketcher.Constraint("Diameter", 0, 2.74))
sketch14.addConstraint(Sketcher.Constraint("DistanceX", -1, 1, 0, 3, 75.0))
sketch14.addConstraint(Sketcher.Constraint("DistanceY", -1, 1, 0, 3, 38.0))
sketch14.addConstraint(Sketcher.Constraint("DistanceX", 1, 3, -1, 1, 3.0))
pad12 = body.newObject("PartDesign::Pad", "Pad011")
pad12.Profile = sketch14
pad12.Length = 10

doc.recompute()
